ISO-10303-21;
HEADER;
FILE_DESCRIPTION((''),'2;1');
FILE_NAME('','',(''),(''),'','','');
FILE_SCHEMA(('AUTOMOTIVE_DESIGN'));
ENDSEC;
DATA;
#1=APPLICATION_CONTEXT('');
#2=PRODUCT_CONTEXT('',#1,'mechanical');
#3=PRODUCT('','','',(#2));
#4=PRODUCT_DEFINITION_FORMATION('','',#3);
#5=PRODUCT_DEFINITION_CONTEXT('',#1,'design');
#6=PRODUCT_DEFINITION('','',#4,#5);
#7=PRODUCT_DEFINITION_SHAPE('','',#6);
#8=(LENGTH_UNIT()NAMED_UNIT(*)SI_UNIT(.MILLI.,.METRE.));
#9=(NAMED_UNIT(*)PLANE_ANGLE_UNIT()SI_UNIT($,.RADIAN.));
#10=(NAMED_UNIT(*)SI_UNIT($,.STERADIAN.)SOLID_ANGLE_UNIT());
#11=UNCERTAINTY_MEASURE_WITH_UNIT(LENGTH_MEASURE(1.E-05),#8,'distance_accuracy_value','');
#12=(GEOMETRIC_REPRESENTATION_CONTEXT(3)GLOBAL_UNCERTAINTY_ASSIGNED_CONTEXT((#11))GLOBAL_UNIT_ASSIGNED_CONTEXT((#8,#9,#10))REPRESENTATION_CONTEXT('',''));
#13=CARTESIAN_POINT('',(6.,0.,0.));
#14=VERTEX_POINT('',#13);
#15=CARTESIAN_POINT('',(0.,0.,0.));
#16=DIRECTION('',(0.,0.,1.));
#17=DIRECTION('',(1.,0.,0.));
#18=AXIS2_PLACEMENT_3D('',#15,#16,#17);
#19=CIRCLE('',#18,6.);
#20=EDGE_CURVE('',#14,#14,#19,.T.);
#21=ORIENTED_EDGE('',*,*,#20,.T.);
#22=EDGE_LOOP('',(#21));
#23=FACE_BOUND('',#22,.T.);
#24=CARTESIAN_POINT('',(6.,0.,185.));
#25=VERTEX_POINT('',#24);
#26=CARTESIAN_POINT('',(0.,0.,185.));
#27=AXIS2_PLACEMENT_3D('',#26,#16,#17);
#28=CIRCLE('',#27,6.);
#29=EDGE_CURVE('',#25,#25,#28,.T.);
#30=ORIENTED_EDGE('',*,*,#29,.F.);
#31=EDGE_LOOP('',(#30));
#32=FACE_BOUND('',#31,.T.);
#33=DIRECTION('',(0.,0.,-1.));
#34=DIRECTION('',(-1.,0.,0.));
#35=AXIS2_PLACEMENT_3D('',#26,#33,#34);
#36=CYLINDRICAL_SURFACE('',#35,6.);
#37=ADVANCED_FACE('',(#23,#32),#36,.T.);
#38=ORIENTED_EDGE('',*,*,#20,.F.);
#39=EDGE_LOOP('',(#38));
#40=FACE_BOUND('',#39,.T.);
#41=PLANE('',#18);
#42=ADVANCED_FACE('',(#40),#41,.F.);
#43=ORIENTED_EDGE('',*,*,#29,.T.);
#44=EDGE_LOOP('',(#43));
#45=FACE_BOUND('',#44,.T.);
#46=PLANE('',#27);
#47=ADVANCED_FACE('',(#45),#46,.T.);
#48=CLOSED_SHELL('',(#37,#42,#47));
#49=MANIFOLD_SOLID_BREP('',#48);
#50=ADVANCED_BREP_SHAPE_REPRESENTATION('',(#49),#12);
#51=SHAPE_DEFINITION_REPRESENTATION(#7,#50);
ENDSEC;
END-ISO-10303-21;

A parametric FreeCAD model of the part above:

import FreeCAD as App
import Part
import Sketcher
from FreeCAD import Vector
Q = App.Units.Quantity

doc = App.newDocument("Part")
body = doc.addObject("PartDesign::Body", "Body")

# Sketch on XY plane
sketch1 = doc.addObject("Sketcher::SketchObject", "Sketch")
body.addObject(sketch1)
sketch1.AttachmentSupport = (doc.XY_Plane, [""])
sketch1.MapMode = "FlatFace"
sketch1.addGeometry(Part.Circle(Vector(0, 0, 0), Vector(0, 0, 1), 6), False)
sketch1.addConstraint([
    Sketcher.Constraint("Coincident", 0, 3, -1, 1),
    Sketcher.Constraint("Diameter", 0, Q("12 mm")),
])
pad1 = doc.addObject("PartDesign::Pad", "Pad")
body.addObject(pad1)
pad1.Profile = sketch1
pad1.Length = 185

doc.recompute()
